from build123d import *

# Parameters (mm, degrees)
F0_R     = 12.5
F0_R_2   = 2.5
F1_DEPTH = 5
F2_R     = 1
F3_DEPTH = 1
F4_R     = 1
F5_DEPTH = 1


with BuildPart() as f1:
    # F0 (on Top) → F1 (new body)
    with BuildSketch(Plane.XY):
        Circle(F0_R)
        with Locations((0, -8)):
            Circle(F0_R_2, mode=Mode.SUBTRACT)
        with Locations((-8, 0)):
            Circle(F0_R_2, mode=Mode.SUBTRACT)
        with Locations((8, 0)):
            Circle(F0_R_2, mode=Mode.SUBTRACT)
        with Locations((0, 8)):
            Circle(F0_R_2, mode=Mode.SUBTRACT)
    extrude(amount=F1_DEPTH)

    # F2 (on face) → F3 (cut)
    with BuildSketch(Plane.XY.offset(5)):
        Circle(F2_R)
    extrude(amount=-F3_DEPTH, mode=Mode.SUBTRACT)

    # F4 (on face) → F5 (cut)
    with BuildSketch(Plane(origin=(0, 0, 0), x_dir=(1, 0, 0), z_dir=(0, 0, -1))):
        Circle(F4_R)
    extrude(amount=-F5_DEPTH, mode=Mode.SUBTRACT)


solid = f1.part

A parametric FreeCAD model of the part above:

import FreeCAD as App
import Part
import Sketcher

doc = App.newDocument("Part")
body = doc.addObject("PartDesign::Body", "Body")

# Sketch on XY plane
sketch1 = body.newObject("Sketcher::SketchObject", "Sketch")
sketch1.AttachmentSupport = (doc.getObject("XY_Plane"), [""])
sketch1.MapMode = "FlatFace"
sketch1.addGeometry(Part.Circle(App.Vector(0, 0, 0), App.Vector(0, 0, 1), 12.5), False)
sketch1.addGeometry(Part.Circle(App.Vector(0, -8, 0), App.Vector(0, 0, 1), 2.5), False)
sketch1.addGeometry(Part.Circle(App.Vector(-8, 0, 0), App.Vector(0, 0, 1), 2.5), False)
sketch1.addGeometry(Part.Circle(App.Vector(8, 0, 0), App.Vector(0, 0, 1), 2.5), False)
sketch1.addGeometry(Part.Circle(App.Vector(0, 8, 0), App.Vector(0, 0, 1), 2.5), False)
sketch1.addConstraint(Sketcher.Constraint("Coincident", 0, 3, -1, 1))
sketch1.addConstraint(Sketcher.Constraint("Equal", 1, 2))
sketch1.addConstraint(Sketcher.Constraint("Equal", 2, 3))
sketch1.addConstraint(Sketcher.Constraint("Equal", 3, 4))
sketch1.addConstraint(Sketcher.Constraint("Symmetric", 2, 3, 3, 3, -1, 1))
sketch1.addConstraint(Sketcher.Constraint("Symmetric", 1, 3, 4, 3, -1, 1))
sketch1.addConstraint(Sketcher.Constraint("PointOnObject", 1, 3, -2))
sketch1.addConstraint(Sketcher.Constraint("PointOnObject", 2, 3, -1))
sketch1.addConstraint(Sketcher.Constraint("Diameter", 0, 25.0))
sketch1.addConstraint(Sketcher.Constraint("Diameter", 1, 5.0))
sketch1.addConstraint(Sketcher.Constraint("DistanceY", 1, 3, -1, 1, 8.0))
sketch1.addConstraint(Sketcher.Constraint("DistanceX", 2, 3, -1, 1, 8.0))
pad1 = body.newObject("PartDesign::Pad", "Pad")
pad1.Profile = sketch1
pad1.Length = 5

# Sketch on XY plane
sketch2 = body.newObject("Sketcher::SketchObject", "Sketch001")
sketch2.AttachmentSupport = (doc.getObject("XY_Plane"), [""])
sketch2.MapMode = "FlatFace"
sketch2.AttachmentOffset = App.Placement(App.Vector(0, 0, 5), App.Rotation())
sketch2.addGeometry(Part.Circle(App.Vector(0, 0, 0), App.Vector(0, 0, 1), 1), False)
sketch2.addConstraint(Sketcher.Constraint("Coincident", 0, 3, -1, 1))
sketch2.addConstraint(Sketcher.Constraint("Diameter", 0, 2.0))
pocket1 = body.newObject("PartDesign::Pocket", "Pocket")
pocket1.Profile = sketch2
pocket1.Length = 1

# Sketch on XY plane
sketch3 = body.newObject("Sketcher::SketchObject", "Sketch002")
sketch3.AttachmentSupport = (doc.getObject("XY_Plane"), [""])
sketch3.MapMode = "FlatFace"
sketch3.addGeometry(Part.Circle(App.Vector(0, 0, 0), App.Vector(0, 0, 1), 1), False)
sketch3.addConstraint(Sketcher.Constraint("Coincident", 0, 3, -1, 1))
sketch3.addConstraint(Sketcher.Constraint("Diameter", 0, 2.0))
pocket2 = body.newObject("PartDesign::Pocket", "Pocket001")
pocket2.Profile = sketch3
pocket2.Length = 1
pocket2.Reversed = True

doc.recompute()
